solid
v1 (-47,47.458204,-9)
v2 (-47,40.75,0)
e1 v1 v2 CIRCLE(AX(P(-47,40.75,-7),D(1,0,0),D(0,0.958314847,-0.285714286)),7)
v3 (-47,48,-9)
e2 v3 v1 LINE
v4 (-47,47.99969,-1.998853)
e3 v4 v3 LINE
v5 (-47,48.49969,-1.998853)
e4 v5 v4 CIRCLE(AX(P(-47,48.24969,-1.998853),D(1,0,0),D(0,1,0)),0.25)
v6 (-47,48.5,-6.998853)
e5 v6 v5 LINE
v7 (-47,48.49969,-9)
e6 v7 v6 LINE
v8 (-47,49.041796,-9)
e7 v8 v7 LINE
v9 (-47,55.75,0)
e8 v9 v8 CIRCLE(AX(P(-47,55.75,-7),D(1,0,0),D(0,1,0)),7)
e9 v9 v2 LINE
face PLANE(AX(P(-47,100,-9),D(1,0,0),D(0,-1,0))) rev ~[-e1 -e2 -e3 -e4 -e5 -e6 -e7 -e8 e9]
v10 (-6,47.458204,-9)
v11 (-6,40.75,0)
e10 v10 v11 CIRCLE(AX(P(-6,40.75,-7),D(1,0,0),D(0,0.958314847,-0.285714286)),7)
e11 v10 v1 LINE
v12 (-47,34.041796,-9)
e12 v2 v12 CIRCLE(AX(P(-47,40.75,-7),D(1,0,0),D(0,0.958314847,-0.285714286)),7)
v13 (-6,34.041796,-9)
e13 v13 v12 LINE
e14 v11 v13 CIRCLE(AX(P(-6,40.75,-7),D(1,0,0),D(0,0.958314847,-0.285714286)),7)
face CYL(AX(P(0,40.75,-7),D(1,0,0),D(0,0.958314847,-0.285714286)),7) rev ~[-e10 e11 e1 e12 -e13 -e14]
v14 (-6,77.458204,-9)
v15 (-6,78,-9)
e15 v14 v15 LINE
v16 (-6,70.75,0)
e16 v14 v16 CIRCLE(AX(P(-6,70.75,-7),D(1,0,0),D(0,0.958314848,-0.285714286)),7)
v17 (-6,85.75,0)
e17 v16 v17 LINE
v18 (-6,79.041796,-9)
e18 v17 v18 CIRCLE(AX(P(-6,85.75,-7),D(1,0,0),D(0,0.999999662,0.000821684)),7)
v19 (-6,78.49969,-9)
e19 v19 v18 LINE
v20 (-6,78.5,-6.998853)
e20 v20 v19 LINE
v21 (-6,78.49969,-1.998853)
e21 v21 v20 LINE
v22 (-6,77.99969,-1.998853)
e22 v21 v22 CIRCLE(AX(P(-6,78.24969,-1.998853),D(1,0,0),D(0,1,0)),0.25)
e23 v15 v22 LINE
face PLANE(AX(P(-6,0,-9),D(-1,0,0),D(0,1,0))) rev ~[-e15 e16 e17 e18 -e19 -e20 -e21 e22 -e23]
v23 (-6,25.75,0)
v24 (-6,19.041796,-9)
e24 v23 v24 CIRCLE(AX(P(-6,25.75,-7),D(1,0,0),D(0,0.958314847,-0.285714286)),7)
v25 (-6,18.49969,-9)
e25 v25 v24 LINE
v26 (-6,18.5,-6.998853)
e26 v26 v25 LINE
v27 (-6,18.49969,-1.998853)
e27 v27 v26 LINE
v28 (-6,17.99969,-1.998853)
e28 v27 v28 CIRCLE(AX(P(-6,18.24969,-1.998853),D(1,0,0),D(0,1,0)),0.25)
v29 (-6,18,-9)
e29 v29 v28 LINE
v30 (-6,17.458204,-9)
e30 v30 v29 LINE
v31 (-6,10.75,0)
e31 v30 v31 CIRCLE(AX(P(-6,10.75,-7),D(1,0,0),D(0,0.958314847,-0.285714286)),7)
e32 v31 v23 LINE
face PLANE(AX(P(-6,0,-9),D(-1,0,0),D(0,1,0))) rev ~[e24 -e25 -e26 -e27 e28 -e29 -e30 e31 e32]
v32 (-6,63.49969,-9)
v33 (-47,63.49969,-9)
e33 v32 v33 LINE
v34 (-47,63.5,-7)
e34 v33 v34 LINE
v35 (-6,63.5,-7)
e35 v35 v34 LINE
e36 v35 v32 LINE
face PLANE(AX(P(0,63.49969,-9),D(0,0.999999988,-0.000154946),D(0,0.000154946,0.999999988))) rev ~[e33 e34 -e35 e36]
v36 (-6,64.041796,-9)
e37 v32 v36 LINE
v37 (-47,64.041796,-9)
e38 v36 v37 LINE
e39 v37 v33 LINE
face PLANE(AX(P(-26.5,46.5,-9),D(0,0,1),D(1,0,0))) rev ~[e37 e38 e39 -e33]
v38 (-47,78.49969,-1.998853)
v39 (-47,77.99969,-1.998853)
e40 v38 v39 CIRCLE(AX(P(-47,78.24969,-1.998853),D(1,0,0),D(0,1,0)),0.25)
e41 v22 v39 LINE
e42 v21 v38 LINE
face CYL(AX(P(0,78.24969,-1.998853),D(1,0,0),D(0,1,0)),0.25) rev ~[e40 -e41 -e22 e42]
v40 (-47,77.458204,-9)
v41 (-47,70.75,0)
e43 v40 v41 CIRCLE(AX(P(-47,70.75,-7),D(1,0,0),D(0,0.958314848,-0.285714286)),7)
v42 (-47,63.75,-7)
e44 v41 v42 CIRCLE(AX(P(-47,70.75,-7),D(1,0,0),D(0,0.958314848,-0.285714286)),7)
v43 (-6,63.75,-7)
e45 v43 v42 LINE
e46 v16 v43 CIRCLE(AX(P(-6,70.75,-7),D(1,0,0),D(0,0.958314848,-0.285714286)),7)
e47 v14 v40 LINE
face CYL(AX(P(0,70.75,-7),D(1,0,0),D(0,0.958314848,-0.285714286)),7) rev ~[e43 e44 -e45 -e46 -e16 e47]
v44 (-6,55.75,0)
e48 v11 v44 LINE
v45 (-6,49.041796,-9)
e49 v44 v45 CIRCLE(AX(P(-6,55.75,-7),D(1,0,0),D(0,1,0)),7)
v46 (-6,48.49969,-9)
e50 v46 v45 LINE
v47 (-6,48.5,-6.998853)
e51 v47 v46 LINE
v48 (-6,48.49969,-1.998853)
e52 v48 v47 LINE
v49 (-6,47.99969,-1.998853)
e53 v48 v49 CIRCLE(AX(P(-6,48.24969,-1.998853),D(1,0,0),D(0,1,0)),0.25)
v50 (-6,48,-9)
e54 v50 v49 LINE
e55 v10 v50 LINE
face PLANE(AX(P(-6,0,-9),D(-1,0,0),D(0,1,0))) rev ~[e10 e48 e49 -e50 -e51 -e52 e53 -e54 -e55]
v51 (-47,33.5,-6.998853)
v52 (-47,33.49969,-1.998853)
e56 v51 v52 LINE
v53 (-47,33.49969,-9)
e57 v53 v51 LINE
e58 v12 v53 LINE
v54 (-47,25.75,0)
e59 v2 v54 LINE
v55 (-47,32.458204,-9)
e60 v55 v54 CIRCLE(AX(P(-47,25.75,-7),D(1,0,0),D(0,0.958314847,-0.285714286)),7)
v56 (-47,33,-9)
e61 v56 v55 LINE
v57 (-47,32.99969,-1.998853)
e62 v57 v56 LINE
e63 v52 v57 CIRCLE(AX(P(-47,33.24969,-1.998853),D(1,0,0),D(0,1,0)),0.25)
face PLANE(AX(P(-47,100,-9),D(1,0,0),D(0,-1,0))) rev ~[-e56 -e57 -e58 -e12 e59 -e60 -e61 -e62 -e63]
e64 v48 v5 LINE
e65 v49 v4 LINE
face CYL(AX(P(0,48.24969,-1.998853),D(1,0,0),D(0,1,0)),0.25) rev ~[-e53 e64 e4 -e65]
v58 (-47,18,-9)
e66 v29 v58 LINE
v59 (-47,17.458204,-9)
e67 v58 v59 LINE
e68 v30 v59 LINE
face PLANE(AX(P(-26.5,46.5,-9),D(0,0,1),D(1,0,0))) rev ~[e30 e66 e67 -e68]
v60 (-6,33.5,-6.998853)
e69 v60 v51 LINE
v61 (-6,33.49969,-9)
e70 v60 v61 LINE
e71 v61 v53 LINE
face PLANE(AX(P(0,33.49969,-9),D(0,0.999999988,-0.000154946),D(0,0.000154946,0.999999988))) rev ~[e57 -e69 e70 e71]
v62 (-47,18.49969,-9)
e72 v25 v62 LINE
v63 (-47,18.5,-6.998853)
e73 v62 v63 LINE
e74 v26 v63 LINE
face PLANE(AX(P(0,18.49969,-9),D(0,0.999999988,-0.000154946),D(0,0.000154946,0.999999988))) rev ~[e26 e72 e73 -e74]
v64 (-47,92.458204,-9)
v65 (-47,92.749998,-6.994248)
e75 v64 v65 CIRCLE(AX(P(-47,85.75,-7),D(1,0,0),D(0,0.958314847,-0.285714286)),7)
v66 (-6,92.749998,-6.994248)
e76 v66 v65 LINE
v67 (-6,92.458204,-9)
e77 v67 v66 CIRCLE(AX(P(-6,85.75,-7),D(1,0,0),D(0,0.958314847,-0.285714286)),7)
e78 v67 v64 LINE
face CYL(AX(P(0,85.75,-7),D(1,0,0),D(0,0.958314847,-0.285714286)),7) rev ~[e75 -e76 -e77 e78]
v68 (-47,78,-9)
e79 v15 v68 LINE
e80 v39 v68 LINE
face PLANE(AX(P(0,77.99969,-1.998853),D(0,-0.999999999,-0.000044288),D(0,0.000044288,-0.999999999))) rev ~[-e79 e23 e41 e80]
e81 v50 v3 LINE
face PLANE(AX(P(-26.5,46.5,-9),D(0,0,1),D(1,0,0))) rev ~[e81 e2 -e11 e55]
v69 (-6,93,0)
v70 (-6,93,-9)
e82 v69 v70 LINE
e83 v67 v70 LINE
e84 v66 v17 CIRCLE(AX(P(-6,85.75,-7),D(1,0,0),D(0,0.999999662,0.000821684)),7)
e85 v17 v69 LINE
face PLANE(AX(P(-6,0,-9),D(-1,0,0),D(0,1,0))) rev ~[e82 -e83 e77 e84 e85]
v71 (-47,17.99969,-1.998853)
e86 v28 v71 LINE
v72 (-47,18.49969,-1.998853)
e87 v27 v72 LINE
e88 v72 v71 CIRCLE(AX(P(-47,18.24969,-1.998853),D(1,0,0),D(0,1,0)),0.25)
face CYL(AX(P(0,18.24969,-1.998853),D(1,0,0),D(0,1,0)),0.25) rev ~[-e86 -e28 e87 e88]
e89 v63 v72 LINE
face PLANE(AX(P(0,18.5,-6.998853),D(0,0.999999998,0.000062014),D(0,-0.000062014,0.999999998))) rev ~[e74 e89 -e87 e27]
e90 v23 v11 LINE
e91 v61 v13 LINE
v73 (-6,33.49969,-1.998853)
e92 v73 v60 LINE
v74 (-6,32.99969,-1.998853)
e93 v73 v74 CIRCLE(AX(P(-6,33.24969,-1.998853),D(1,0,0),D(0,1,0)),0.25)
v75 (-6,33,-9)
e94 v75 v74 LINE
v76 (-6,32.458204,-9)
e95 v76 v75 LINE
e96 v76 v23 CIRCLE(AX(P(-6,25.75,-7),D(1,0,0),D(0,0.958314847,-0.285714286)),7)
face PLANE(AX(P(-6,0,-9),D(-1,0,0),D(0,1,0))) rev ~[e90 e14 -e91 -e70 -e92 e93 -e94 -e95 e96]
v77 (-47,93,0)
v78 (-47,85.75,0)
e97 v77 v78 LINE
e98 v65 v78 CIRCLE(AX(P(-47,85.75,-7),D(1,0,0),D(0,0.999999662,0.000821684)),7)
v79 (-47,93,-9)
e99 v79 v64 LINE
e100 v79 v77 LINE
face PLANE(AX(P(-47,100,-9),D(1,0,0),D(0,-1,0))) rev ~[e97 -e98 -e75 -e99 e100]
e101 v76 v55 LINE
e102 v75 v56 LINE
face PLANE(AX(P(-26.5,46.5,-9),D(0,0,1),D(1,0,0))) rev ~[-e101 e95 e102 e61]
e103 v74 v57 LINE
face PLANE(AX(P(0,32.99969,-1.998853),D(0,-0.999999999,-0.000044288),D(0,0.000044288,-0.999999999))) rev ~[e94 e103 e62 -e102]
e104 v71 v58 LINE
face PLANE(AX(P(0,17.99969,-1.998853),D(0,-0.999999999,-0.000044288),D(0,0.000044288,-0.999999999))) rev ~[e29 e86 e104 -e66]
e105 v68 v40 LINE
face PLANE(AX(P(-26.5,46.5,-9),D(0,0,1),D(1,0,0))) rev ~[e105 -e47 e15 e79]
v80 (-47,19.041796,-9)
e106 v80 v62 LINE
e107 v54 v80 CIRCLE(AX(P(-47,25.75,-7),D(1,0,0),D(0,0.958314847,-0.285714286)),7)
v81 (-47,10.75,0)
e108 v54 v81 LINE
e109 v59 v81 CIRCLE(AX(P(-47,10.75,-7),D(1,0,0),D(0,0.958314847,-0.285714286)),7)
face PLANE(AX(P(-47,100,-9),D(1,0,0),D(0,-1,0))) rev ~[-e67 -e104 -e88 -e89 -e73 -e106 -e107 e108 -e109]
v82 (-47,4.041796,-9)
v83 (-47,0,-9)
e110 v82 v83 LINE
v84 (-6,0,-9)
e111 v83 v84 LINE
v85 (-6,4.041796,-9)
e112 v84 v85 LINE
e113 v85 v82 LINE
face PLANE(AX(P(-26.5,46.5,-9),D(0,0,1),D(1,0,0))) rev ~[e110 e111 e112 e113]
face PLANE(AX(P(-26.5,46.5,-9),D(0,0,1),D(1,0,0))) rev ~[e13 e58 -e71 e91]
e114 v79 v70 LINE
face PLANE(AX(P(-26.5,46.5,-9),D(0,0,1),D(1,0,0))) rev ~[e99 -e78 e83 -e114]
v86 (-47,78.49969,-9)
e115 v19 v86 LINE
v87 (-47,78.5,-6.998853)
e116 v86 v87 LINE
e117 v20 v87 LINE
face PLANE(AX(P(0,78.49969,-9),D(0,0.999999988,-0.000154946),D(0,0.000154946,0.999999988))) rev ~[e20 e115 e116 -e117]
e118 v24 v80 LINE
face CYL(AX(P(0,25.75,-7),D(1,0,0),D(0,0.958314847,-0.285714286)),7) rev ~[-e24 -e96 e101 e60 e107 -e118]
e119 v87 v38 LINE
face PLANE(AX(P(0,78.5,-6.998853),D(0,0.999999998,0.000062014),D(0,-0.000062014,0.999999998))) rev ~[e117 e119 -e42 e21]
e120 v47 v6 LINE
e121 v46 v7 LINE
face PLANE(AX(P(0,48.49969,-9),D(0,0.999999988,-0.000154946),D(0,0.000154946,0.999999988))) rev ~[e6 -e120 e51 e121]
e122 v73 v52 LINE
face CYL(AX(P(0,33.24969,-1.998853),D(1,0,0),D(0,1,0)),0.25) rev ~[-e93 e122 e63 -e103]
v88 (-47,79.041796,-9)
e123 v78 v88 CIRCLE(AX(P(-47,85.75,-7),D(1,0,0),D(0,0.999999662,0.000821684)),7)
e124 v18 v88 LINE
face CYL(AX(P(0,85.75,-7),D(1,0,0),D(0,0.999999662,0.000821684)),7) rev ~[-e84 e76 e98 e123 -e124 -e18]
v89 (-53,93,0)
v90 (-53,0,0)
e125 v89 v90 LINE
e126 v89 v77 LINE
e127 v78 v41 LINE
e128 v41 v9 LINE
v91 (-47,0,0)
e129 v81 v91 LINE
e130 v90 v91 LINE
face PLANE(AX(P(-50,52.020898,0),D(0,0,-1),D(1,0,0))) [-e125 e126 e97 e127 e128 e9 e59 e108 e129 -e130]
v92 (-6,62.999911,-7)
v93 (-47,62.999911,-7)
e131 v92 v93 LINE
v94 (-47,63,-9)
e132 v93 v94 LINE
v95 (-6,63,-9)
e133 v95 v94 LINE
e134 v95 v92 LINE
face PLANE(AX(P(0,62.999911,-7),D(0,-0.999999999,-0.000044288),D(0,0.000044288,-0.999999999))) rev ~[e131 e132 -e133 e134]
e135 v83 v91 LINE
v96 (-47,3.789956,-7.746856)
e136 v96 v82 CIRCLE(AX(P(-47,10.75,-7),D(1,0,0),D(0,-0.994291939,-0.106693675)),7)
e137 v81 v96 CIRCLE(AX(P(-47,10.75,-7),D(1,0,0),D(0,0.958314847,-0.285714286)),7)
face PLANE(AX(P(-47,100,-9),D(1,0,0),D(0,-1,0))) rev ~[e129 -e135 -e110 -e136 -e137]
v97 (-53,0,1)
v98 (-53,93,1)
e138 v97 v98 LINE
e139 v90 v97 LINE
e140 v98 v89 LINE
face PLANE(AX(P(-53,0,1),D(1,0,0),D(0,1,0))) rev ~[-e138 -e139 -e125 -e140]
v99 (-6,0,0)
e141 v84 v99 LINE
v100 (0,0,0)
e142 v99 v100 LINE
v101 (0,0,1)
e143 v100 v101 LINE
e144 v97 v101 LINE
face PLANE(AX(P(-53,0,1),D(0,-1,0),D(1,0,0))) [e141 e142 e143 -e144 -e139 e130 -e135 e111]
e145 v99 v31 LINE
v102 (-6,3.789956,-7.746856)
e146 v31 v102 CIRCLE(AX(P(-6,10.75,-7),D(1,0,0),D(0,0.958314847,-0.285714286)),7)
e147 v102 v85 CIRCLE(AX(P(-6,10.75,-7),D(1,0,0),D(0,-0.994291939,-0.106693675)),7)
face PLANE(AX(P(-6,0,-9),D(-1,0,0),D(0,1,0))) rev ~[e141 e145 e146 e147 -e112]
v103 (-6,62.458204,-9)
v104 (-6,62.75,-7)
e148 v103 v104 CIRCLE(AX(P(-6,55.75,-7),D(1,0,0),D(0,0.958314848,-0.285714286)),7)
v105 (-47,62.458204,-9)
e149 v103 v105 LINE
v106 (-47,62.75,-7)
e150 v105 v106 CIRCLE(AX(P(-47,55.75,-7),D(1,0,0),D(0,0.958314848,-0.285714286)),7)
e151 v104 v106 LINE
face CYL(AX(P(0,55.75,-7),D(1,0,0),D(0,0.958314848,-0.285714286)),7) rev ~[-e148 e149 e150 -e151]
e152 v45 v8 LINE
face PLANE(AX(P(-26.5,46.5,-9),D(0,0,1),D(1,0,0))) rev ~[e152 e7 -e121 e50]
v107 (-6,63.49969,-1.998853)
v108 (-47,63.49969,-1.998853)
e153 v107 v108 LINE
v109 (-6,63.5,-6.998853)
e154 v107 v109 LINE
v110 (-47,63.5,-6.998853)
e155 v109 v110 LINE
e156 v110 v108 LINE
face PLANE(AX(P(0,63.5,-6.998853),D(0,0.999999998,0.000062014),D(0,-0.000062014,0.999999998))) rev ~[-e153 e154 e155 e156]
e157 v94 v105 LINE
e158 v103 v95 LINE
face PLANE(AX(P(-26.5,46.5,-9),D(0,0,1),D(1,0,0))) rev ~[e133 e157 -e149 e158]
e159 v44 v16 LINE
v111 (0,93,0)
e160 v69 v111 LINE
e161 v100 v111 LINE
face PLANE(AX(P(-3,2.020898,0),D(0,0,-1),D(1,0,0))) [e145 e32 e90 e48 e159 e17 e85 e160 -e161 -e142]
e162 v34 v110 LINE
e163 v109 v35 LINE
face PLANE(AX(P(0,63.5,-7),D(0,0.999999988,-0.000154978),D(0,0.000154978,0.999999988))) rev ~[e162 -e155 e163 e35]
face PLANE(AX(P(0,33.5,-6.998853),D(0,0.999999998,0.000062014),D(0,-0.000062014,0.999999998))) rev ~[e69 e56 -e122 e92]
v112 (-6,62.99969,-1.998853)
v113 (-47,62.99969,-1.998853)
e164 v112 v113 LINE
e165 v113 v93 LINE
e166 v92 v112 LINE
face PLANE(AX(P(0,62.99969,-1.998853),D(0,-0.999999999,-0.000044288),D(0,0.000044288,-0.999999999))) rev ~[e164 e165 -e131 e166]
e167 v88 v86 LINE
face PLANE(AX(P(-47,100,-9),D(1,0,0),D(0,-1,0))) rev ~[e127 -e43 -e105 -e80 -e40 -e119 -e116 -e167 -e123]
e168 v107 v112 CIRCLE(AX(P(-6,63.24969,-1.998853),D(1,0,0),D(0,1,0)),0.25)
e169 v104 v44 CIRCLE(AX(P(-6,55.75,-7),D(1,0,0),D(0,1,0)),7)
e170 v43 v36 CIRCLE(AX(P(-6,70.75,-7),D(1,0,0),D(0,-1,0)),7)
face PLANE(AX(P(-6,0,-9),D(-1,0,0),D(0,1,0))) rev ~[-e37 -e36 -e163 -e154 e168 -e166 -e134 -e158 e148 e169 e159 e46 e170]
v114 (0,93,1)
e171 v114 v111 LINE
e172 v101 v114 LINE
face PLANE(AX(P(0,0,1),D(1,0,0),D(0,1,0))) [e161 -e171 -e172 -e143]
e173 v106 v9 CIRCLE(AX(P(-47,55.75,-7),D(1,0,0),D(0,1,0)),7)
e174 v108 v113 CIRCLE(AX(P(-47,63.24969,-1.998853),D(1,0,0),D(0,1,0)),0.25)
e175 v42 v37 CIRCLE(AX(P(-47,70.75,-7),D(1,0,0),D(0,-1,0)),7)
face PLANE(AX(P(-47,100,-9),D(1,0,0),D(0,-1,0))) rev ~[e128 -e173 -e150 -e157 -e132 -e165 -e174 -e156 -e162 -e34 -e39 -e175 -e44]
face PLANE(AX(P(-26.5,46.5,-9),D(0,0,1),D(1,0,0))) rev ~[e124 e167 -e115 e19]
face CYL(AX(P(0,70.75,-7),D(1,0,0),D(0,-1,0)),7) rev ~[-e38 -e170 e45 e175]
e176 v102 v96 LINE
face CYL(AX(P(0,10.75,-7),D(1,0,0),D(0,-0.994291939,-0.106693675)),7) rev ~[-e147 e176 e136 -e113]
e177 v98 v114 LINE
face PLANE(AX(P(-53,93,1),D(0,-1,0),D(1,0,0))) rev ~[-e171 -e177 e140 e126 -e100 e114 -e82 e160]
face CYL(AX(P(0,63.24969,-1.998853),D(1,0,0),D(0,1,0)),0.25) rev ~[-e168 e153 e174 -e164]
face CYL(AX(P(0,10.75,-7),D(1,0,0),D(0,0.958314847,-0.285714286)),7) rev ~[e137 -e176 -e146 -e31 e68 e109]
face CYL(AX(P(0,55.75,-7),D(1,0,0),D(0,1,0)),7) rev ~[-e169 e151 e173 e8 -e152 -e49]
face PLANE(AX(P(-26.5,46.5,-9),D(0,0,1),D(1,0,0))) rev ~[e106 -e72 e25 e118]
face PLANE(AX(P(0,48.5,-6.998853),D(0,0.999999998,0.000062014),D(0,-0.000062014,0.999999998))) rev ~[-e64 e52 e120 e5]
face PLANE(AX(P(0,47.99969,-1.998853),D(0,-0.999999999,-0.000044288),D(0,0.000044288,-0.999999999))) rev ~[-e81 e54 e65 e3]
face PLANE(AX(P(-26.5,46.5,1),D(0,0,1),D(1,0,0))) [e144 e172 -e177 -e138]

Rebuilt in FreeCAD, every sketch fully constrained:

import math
import FreeCAD as App
import Part
import Sketcher
from FreeCAD import Vector
Q = App.Units.Quantity


def add_polygon(sketch, points):
    """Adds a closed chain of lines whose ends are joined by coincident constraints."""
    first, n = sketch.GeometryCount, len(points)
    for a, b in zip(points, points[1:] + points[:1]):
        sketch.addGeometry(Part.LineSegment(App.Vector(*a, 0), App.Vector(*b, 0)), False)
    for i in range(n):
        sketch.addConstraint(Sketcher.Constraint("Coincident", first + i, 2, first + (i + 1) % n, 1))

doc = App.newDocument("Part")
params = doc.addObject("Spreadsheet::Sheet", "Params")
for row, (alias, value) in enumerate([
    ("sketch1_width", "53 mm"),
    ("sketch1_height", "93 mm"),
    ("pad1_length", "1 mm"),
    ("sketch2_width", "53 mm"),
    ("sketch2_height", "93 mm"),
    ("pad2_length", "10 mm"),
    ("sketch3_radius", "7 mm"),
    ("pocket1_length", "70 mm"),
    ("sketch4_width", "6 mm"),
    ("sketch4_height", "100 mm"),
    ("pocket2_length", "9 mm"),
    ("sketch5_radius", "0.25 mm"),
    ("sketch5_length", "5 mm"),
    ("sketch5_length2", "2 mm"),
    ("pocket3_length", "60 mm"),
], start=1):
    params.set(f"A{row}", alias)
    params.set(f"B{row}", "=" + value)
    params.setAlias(f"B{row}", alias)

body = doc.addObject("PartDesign::Body", "Body")

# Sketch on XY plane
sketch1 = body.newObject("Sketcher::SketchObject", "Sketch")
sketch1.AttachmentSupport = (doc.getObject("XY_Plane"), [""])
sketch1.MapMode = "FlatFace"
add_polygon(sketch1, [(-53, 93), (-53, 0), (0, 0), (0, 93)])  # lines 0-3
sketch1.addConstraint(Sketcher.Constraint("Vertical", 0))
sketch1.addConstraint(Sketcher.Constraint("Horizontal", 1))
sketch1.addConstraint(Sketcher.Constraint("Vertical", 2))
sketch1.addConstraint(Sketcher.Constraint("Horizontal", 3))
sketch1.addConstraint(Sketcher.Constraint("Coincident", 1, 2, -1, 1))
sketch1.addConstraint(Sketcher.Constraint("DistanceX", 1, 1, 1, 2, Q("53 mm")))
sketch1.addConstraint(Sketcher.Constraint("DistanceY", 0, 2, 0, 1, Q("93 mm")))
sketch1.setExpression("Constraints[9]", "Params.sketch1_width")
sketch1.setExpression("Constraints[10]", "Params.sketch1_height")
pad1 = body.newObject("PartDesign::Pad", "Pad")
pad1.Profile = sketch1
pad1.setExpression("Length", "Params.pad1_length")

# Sketch on XY plane
sketch2 = body.newObject("Sketcher::SketchObject", "Sketch001")
sketch2.AttachmentSupport = (doc.getObject("XY_Plane"), [""])
sketch2.MapMode = "FlatFace"
sketch2.AttachmentOffset = App.Placement(Vector(0, 0, 1), App.Rotation())
add_polygon(sketch2, [(-53, 93), (-53, 0), (0, 0), (0, 93)])  # lines 0-3
sketch2.addConstraint(Sketcher.Constraint("Vertical", 0))
sketch2.addConstraint(Sketcher.Constraint("Horizontal", 1))
sketch2.addConstraint(Sketcher.Constraint("Vertical", 2))
sketch2.addConstraint(Sketcher.Constraint("Horizontal", 3))
sketch2.addConstraint(Sketcher.Constraint("Coincident", 1, 2, -1, 1))
sketch2.addConstraint(Sketcher.Constraint("DistanceX", 1, 1, 1, 2, Q("53 mm")))
sketch2.addConstraint(Sketcher.Constraint("DistanceY", 0, 2, 0, 1, Q("93 mm")))
sketch2.setExpression("Constraints[9]", "Params.sketch2_width")
sketch2.setExpression("Constraints[10]", "Params.sketch2_height")
pad2 = body.newObject("PartDesign::Pad", "Pad001")
pad2.Profile = sketch2
pad2.setExpression("Length", "Params.pad2_length")
pad2.Reversed = True

# Sketch on YZ plane
sketch3 = body.newObject("Sketcher::SketchObject", "Sketch002")
sketch3.AttachmentSupport = (doc.getObject("YZ_Plane"), [""])
sketch3.MapMode = "FlatFace"
sketch3.addGeometry(Part.LineSegment(Vector(93, -9, 0), Vector(92.5, -9, 0)), False)
sketch3.addGeometry(Part.ArcOfCircle(Part.Circle(Vector(85.8, -7, 0), Vector(0, 0, 1), 7), math.radians(-16.6), math.radians(0.05)), False)
sketch3.addGeometry(Part.ArcOfCircle(Part.Circle(Vector(85.8, -7, 0), Vector(0, 0, 1), 7), math.radians(0), math.radians(197)), False)
sketch3.addGeometry(Part.LineSegment(Vector(79, -9, 0), Vector(77.5, -9, 0)), False)
sketch3.addGeometry(Part.ArcOfCircle(Part.Circle(Vector(70.8, -7, 0), Vector(0, 0, 1), 7), math.radians(-17), math.radians(180)), False)
sketch3.addGeometry(Part.ArcOfCircle(Part.Circle(Vector(70.8, -7, 0), Vector(0, 0, 1), 7), math.radians(-180), math.radians(-163.4)), False)
sketch3.addGeometry(Part.LineSegment(Vector(64, -9, 0), Vector(62.5, -9, 0)), False)
sketch3.addGeometry(Part.ArcOfCircle(Part.Circle(Vector(55.7, -7, 0), Vector(0, 0, 1), 7), math.radians(-16.6), math.radians(0)), False)
sketch3.addGeometry(Part.ArcOfCircle(Part.Circle(Vector(55.8, -7, 0), Vector(0, 0, 1), 7), math.radians(0), math.radians(197)), False)
sketch3.addGeometry(Part.LineSegment(Vector(49, -9, 0), Vector(47.5, -9, 0)), False)
sketch3.addGeometry(Part.ArcOfCircle(Part.Circle(Vector(40.8, -7, 0), Vector(0, 0, 1), 7), math.radians(-17), math.radians(197)), False)
sketch3.addGeometry(Part.LineSegment(Vector(34, -9, 0), Vector(32.5, -9, 0)), False)
sketch3.addGeometry(Part.ArcOfCircle(Part.Circle(Vector(25.7, -7, 0), Vector(0, 0, 1), 7), math.radians(-17), math.radians(197)), False)
sketch3.addGeometry(Part.LineSegment(Vector(19, -9, 0), Vector(17.5, -9, 0)), False)
sketch3.addGeometry(Part.ArcOfCircle(Part.Circle(Vector(10.7, -7, 0), Vector(0, 0, 1), 7), math.radians(-17), math.radians(186)), False)
sketch3.addGeometry(Part.ArcOfCircle(Part.Circle(Vector(10.8, -7, 0), Vector(0, 0, 1), 7), math.radians(-173.88), math.radians(-163.4)), False)
sketch3.addGeometry(Part.LineSegment(Vector(4, -9, 0), Vector(0, -9, 0)), False)
sketch3.addGeometry(Part.LineSegment(Vector(0, -9, 0), Vector(0, -7.7, 0)), False)
sketch3.addGeometry(Part.LineSegment(Vector(0, -7.7, 0), Vector(-7.5, -7.7, 0)), False)
sketch3.addGeometry(Part.LineSegment(Vector(-7.5, -7.7, 0), Vector(-7.5, -22.5, 0)), False)
sketch3.addGeometry(Part.LineSegment(Vector(-7.5, -22.5, 0), Vector(98.1, -22.5, 0)), False)
sketch3.addGeometry(Part.LineSegment(Vector(98.1, -22.5, 0), Vector(98.1, -7, 0)), False)
sketch3.addGeometry(Part.LineSegment(Vector(98.1, -7, 0), Vector(93, -7, 0)), False)
sketch3.addGeometry(Part.LineSegment(Vector(93, -7, 0), Vector(93, -9, 0)), False)
sketch3.addConstraint(Sketcher.Constraint("Coincident", 0, 2, 1, 1))
sketch3.addConstraint(Sketcher.Constraint("Tangent", 1, 2, 2, 1))
sketch3.addConstraint(Sketcher.Constraint("Coincident", 2, 2, 3, 1))
sketch3.addConstraint(Sketcher.Constraint("Coincident", 3, 2, 4, 1))
sketch3.addConstraint(Sketcher.Constraint("Tangent", 4, 2, 5, 1))
sketch3.addConstraint(Sketcher.Constraint("Coincident", 5, 2, 6, 1))
sketch3.addConstraint(Sketcher.Constraint("Coincident", 6, 2, 7, 1))
sketch3.addConstraint(Sketcher.Constraint("Tangent", 7, 2, 8, 1))
sketch3.addConstraint(Sketcher.Constraint("Coincident", 8, 2, 9, 1))
sketch3.addConstraint(Sketcher.Constraint("Coincident", 9, 2, 10, 1))
sketch3.addConstraint(Sketcher.Constraint("Coincident", 10, 2, 11, 1))
sketch3.addConstraint(Sketcher.Constraint("Coincident", 11, 2, 12, 1))
sketch3.addConstraint(Sketcher.Constraint("Coincident", 12, 2, 13, 1))
sketch3.addConstraint(Sketcher.Constraint("Coincident", 13, 2, 14, 1))
sketch3.addConstraint(Sketcher.Constraint("Tangent", 14, 2, 15, 1))
sketch3.addConstraint(Sketcher.Constraint("Coincident", 15, 2, 16, 1))
sketch3.addConstraint(Sketcher.Constraint("Coincident", 16, 2, 17, 1))
sketch3.addConstraint(Sketcher.Constraint("Coincident", 17, 2, 18, 1))
sketch3.addConstraint(Sketcher.Constraint("Coincident", 18, 2, 19, 1))
sketch3.addConstraint(Sketcher.Constraint("Coincident", 19, 2, 20, 1))
sketch3.addConstraint(Sketcher.Constraint("Coincident", 20, 2, 21, 1))
sketch3.addConstraint(Sketcher.Constraint("Coincident", 21, 2, 22, 1))
sketch3.addConstraint(Sketcher.Constraint("Coincident", 22, 2, 23, 1))
sketch3.addConstraint(Sketcher.Constraint("Coincident", 23, 2, 0, 1))
sketch3.addConstraint(Sketcher.Constraint("Horizontal", 0))
sketch3.addConstraint(Sketcher.Constraint("Horizontal", 3))
sketch3.addConstraint(Sketcher.Constraint("Horizontal", 6))
sketch3.addConstraint(Sketcher.Constraint("Horizontal", 9))
sketch3.addConstraint(Sketcher.Constraint("Horizontal", 11))
sketch3.addConstraint(Sketcher.Constraint("Horizontal", 13))
sketch3.addConstraint(Sketcher.Constraint("Horizontal", 16))
sketch3.addConstraint(Sketcher.Constraint("Vertical", 17))
sketch3.addConstraint(Sketcher.Constraint("Horizontal", 18))
sketch3.addConstraint(Sketcher.Constraint("Vertical", 19))
sketch3.addConstraint(Sketcher.Constraint("Horizontal", 20))
sketch3.addConstraint(Sketcher.Constraint("Vertical", 21))
sketch3.addConstraint(Sketcher.Constraint("Horizontal", 22))
sketch3.addConstraint(Sketcher.Constraint("Vertical", 23))
sketch3.addConstraint(Sketcher.Constraint("Equal", 1, 2))
sketch3.addConstraint(Sketcher.Constraint("Equal", 2, 4))
sketch3.addConstraint(Sketcher.Constraint("Equal", 4, 5))
sketch3.addConstraint(Sketcher.Constraint("Equal", 5, 7))
sketch3.addConstraint(Sketcher.Constraint("Equal", 7, 8))
sketch3.addConstraint(Sketcher.Constraint("Equal", 8, 10))
sketch3.addConstraint(Sketcher.Constraint("Equal", 10, 12))
sketch3.addConstraint(Sketcher.Constraint("Equal", 12, 14))
sketch3.addConstraint(Sketcher.Constraint("Equal", 14, 15))
sketch3.addConstraint(Sketcher.Constraint("PointOnObject", 16, 2, -2))
sketch3.addConstraint(Sketcher.Constraint("Horizontal", 2, 3, 4, 3))
sketch3.addConstraint(Sketcher.Constraint("Horizontal", 5, 3, 7, 3))
sketch3.addConstraint(Sketcher.Constraint("Horizontal", 8, 3, 10, 3))
sketch3.addConstraint(Sketcher.Constraint("Horizontal", 10, 3, 12, 3))
sketch3.addConstraint(Sketcher.Constraint("Horizontal", 12, 3, 14, 3))
sketch3.addConstraint(Sketcher.Constraint("Horizontal", 0, 2, 2, 2))
sketch3.addConstraint(Sketcher.Constraint("Horizontal", 15, 3, 4, 2))
sketch3.addConstraint(Sketcher.Constraint("Horizontal", 3, 2, 5, 2))
sketch3.addConstraint(Sketcher.Constraint("Horizontal", 4, 2, 7, 2))
sketch3.addConstraint(Sketcher.Constraint("Horizontal", 6, 2, 8, 2))
sketch3.addConstraint(Sketcher.Constraint("Horizontal", 9, 2, 10, 2))
sketch3.addConstraint(Sketcher.Constraint("Horizontal", 11, 2, 12, 2))
sketch3.addConstraint(Sketcher.Constraint("Horizontal", 13, 2, 15, 2))
sketch3.addConstraint(Sketcher.Constraint("Horizontal", 14, 2, 17, 2))
sketch3.addConstraint(Sketcher.Constraint("Horizontal", 1, 2, 21, 2))
sketch3.addConstraint(Sketcher.Constraint("Equal", 3, 6))
sketch3.addConstraint(Sketcher.Constraint("Equal", 6, 9))
sketch3.addConstraint(Sketcher.Constraint("Equal", 9, 11))
sketch3.addConstraint(Sketcher.Constraint("Equal", 11, 13))
sketch3.addConstraint(Sketcher.Constraint("Radius", 1, Q("7 mm")))
sketch3.addConstraint(Sketcher.Constraint("DistanceY", 1, 3, -1, 1, Q("7 mm")))
sketch3.addConstraint(Sketcher.Constraint("DistanceY", 0, 2, -1, 1, Q("9 mm")))
sketch3.addConstraint(Sketcher.Constraint("DistanceX", -1, 1, 22, 2, Q("93 mm")))
sketch3.addConstraint(Sketcher.Constraint("DistanceX", 4, 3, 2, 3, Q("15 mm")))
sketch3.addConstraint(Sketcher.Constraint("DistanceX", -1, 1, 1, 3, Q("85.75 mm")))
sketch3.addConstraint(Sketcher.Constraint("DistanceY", 23, 2, 23, 1, Q("2.005752 mm")))
sketch3.addConstraint(Sketcher.Constraint("DistanceX", 0, 2, 20, 2, Q("5.625702 mm")))
sketch3.addConstraint(Sketcher.Constraint("DistanceX", 18, 2, 18, 1, Q("7.470557 mm")))
sketch3.addConstraint(Sketcher.Constraint("DistanceY", 17, 1, 17, 2, Q("1.253144 mm")))
sketch3.addConstraint(Sketcher.Constraint("DistanceY", 19, 2, 19, 1, Q("14.708185 mm")))
sketch3.setExpression("Constraints[67]", "Params.sketch3_radius")
pocket1 = body.newObject("PartDesign::Pocket", "Pocket")
pocket1.Profile = sketch3
pocket1.setExpression("Length", "Params.pocket1_length")

# Sketch on XY plane
sketch4 = body.newObject("Sketcher::SketchObject", "Sketch003")
sketch4.AttachmentSupport = (doc.getObject("XY_Plane"), [""])
sketch4.MapMode = "FlatFace"
sketch4.AttachmentOffset = App.Placement(Vector(0, 0, -9), App.Rotation())
add_polygon(sketch4, [(-53, 100), (-47, 100), (-47, 0), (-53, 0)])  # lines 0-3
add_polygon(sketch4, [(-6, 0), (-6, 100), (0, 100), (0, 0)])  # lines 4-7
sketch4.addConstraint(Sketcher.Constraint("Horizontal", 0))
sketch4.addConstraint(Sketcher.Constraint("Vertical", 1))
sketch4.addConstraint(Sketcher.Constraint("Horizontal", 2))
sketch4.addConstraint(Sketcher.Constraint("Vertical", 3))
sketch4.addConstraint(Sketcher.Constraint("Vertical", 4))
sketch4.addConstraint(Sketcher.Constraint("Horizontal", 5))
sketch4.addConstraint(Sketcher.Constraint("Vertical", 6))
sketch4.addConstraint(Sketcher.Constraint("Horizontal", 7))
sketch4.addConstraint(Sketcher.Constraint("Coincident", 6, 2, -1, 1))
sketch4.addConstraint(Sketcher.Constraint("PointOnObject", 1, 2, -1))
sketch4.addConstraint(Sketcher.Constraint("Horizontal", 3, 2, 4, 2))
sketch4.addConstraint(Sketcher.Constraint("Equal", 2, 5))
sketch4.addConstraint(Sketcher.Constraint("DistanceX", 0, 1, 0, 2, Q("6 mm")))
sketch4.addConstraint(Sketcher.Constraint("DistanceY", 1, 2, 1, 1, Q("100 mm")))
sketch4.addConstraint(Sketcher.Constraint("DistanceX", 0, 2, -1, 1, Q("47 mm")))
sketch4.setExpression("Constraints[20]", "Params.sketch4_width")
sketch4.setExpression("Constraints[21]", "Params.sketch4_height")
pocket2 = body.newObject("PartDesign::Pocket", "Pocket001")
pocket2.Profile = sketch4
pocket2.setExpression("Length", "Params.pocket2_length")
pocket2.Reversed = True

# Sketch on YZ plane
sketch5 = body.newObject("Sketcher::SketchObject", "Sketch004")
sketch5.AttachmentSupport = (doc.getObject("YZ_Plane"), [""])
sketch5.MapMode = "FlatFace"
sketch5.addGeometry(Part.LineSegment(Vector(17.9997, -1.9989, 0), Vector(18, -9, 0)), False)
sketch5.addGeometry(Part.LineSegment(Vector(18, -9, 0), Vector(18.4997, -9, 0)), False)
sketch5.addGeometry(Part.LineSegment(Vector(18.4997, -9, 0), Vector(18.5, -6.9989, 0)), False)
sketch5.addGeometry(Part.LineSegment(Vector(18.5, -6.9989, 0), Vector(18.4997, -1.9989, 0)), False)
sketch5.addGeometry(Part.ArcOfCircle(Part.Circle(Vector(18.2497, -1.9989, 0), Vector(0, 0, 1), 0.25), math.radians(0), math.radians(180)), False)
sketch5.addGeometry(Part.LineSegment(Vector(32.9997, -1.9989, 0), Vector(33, -9, 0)), False)
sketch5.addGeometry(Part.LineSegment(Vector(33, -9, 0), Vector(33.4997, -9, 0)), False)
sketch5.addGeometry(Part.LineSegment(Vector(33.4997, -9, 0), Vector(33.5, -6.9989, 0)), False)
sketch5.addGeometry(Part.LineSegment(Vector(33.5, -6.9989, 0), Vector(33.4997, -1.9989, 0)), False)
sketch5.addGeometry(Part.ArcOfCircle(Part.Circle(Vector(33.2497, -1.9989, 0), Vector(0, 0, 1), 0.25), math.radians(0), math.radians(180)), False)
sketch5.addGeometry(Part.LineSegment(Vector(48, -9, 0), Vector(48.4997, -9, 0)), False)
sketch5.addGeometry(Part.LineSegment(Vector(48.4997, -9, 0), Vector(48.5, -6.9989, 0)), False)
sketch5.addGeometry(Part.LineSegment(Vector(48.5, -6.9989, 0), Vector(48.4997, -1.9989, 0)), False)
sketch5.addGeometry(Part.ArcOfCircle(Part.Circle(Vector(48.2497, -1.9989, 0), Vector(0, 0, 1), 0.25), math.radians(0), math.radians(180)), False)
sketch5.addGeometry(Part.LineSegment(Vector(47.9997, -1.9989, 0), Vector(48, -9, 0)), False)
sketch5.addGeometry(Part.LineSegment(Vector(63.5, -7, 0), Vector(63.5, -6.9989, 0)), False)
sketch5.addGeometry(Part.LineSegment(Vector(63.5, -6.9989, 0), Vector(63.4997, -1.9989, 0)), False)
sketch5.addGeometry(Part.ArcOfCircle(Part.Circle(Vector(63.2497, -1.9989, 0), Vector(0, 0, 1), 0.25), math.radians(0), math.radians(180)), False)
sketch5.addGeometry(Part.LineSegment(Vector(62.9997, -1.9989, 0), Vector(62.9999, -7, 0)), False)
sketch5.addGeometry(Part.LineSegment(Vector(62.9999, -7, 0), Vector(63, -9, 0)), False)
sketch5.addGeometry(Part.LineSegment(Vector(63, -9, 0), Vector(63.4997, -9, 0)), False)
sketch5.addGeometry(Part.LineSegment(Vector(63.4997, -9, 0), Vector(63.5, -7, 0)), False)
sketch5.addGeometry(Part.LineSegment(Vector(78, -9, 0), Vector(78.4997, -9, 0)), False)
sketch5.addGeometry(Part.LineSegment(Vector(78.4997, -9, 0), Vector(78.5, -6.9989, 0)), False)
sketch5.addGeometry(Part.LineSegment(Vector(78.5, -6.9989, 0), Vector(78.4997, -1.9989, 0)), False)
sketch5.addGeometry(Part.ArcOfCircle(Part.Circle(Vector(78.2497, -1.9989, 0), Vector(0, 0, 1), 0.25), math.radians(0), math.radians(180)), False)
sketch5.addGeometry(Part.LineSegment(Vector(77.9997, -1.9989, 0), Vector(78, -9, 0)), False)
sketch5.addConstraint(Sketcher.Constraint("Coincident", 0, 2, 1, 1))
sketch5.addConstraint(Sketcher.Constraint("Coincident", 1, 2, 2, 1))
sketch5.addConstraint(Sketcher.Constraint("Coincident", 2, 2, 3, 1))
sketch5.addConstraint(Sketcher.Constraint("Coincident", 3, 2, 4, 1))
sketch5.addConstraint(Sketcher.Constraint("Coincident", 4, 2, 0, 1))
sketch5.addConstraint(Sketcher.Constraint("Coincident", 5, 2, 6, 1))
sketch5.addConstraint(Sketcher.Constraint("Coincident", 6, 2, 7, 1))
sketch5.addConstraint(Sketcher.Constraint("Coincident", 7, 2, 8, 1))
sketch5.addConstraint(Sketcher.Constraint("Coincident", 8, 2, 9, 1))
sketch5.addConstraint(Sketcher.Constraint("Coincident", 9, 2, 5, 1))
sketch5.addConstraint(Sketcher.Constraint("Coincident", 10, 2, 11, 1))
sketch5.addConstraint(Sketcher.Constraint("Coincident", 11, 2, 12, 1))
sketch5.addConstraint(Sketcher.Constraint("Coincident", 12, 2, 13, 1))
sketch5.addConstraint(Sketcher.Constraint("Coincident", 13, 2, 14, 1))
sketch5.addConstraint(Sketcher.Constraint("Coincident", 14, 2, 10, 1))
sketch5.addConstraint(Sketcher.Constraint("Coincident", 15, 2, 16, 1))
sketch5.addConstraint(Sketcher.Constraint("Coincident", 16, 2, 17, 1))
sketch5.addConstraint(Sketcher.Constraint("Coincident", 17, 2, 18, 1))
sketch5.addConstraint(Sketcher.Constraint("Coincident", 18, 2, 19, 1))
sketch5.addConstraint(Sketcher.Constraint("Coincident", 19, 2, 20, 1))
sketch5.addConstraint(Sketcher.Constraint("Coincident", 20, 2, 21, 1))
sketch5.addConstraint(Sketcher.Constraint("Coincident", 21, 2, 15, 1))
sketch5.addConstraint(Sketcher.Constraint("Coincident", 22, 2, 23, 1))
sketch5.addConstraint(Sketcher.Constraint("Coincident", 23, 2, 24, 1))
sketch5.addConstraint(Sketcher.Constraint("Coincident", 24, 2, 25, 1))
sketch5.addConstraint(Sketcher.Constraint("Coincident", 25, 2, 26, 1))
sketch5.addConstraint(Sketcher.Constraint("Coincident", 26, 2, 22, 1))
sketch5.addConstraint(Sketcher.Constraint("Horizontal", 1))
sketch5.addConstraint(Sketcher.Constraint("Horizontal", 6))
sketch5.addConstraint(Sketcher.Constraint("Horizontal", 10))
sketch5.addConstraint(Sketcher.Constraint("Vertical", 15))
sketch5.addConstraint(Sketcher.Constraint("Horizontal", 20))
sketch5.addConstraint(Sketcher.Constraint("Horizontal", 22))
sketch5.addConstraint(Sketcher.Constraint("Equal", 4, 9))
sketch5.addConstraint(Sketcher.Constraint("Equal", 9, 13))
sketch5.addConstraint(Sketcher.Constraint("Equal", 13, 17))
sketch5.addConstraint(Sketcher.Constraint("Equal", 17, 25))
sketch5.addConstraint(Sketcher.Constraint("Parallel", 0, 5))
sketch5.addConstraint(Sketcher.Constraint("Parallel", 2, 7))
sketch5.addConstraint(Sketcher.Constraint("Parallel", 3, 8))
sketch5.addConstraint(Sketcher.Constraint("Parallel", 7, 11))
sketch5.addConstraint(Sketcher.Constraint("Parallel", 8, 12))
sketch5.addConstraint(Sketcher.Constraint("Parallel", 5, 14))
sketch5.addConstraint(Sketcher.Constraint("Parallel", 12, 16))
sketch5.addConstraint(Sketcher.Constraint("Parallel", 14, 18))
sketch5.addConstraint(Sketcher.Constraint("Parallel", 18, 19))
sketch5.addConstraint(Sketcher.Constraint("Parallel", 11, 21))
sketch5.addConstraint(Sketcher.Constraint("Parallel", 21, 23))
sketch5.addConstraint(Sketcher.Constraint("Parallel", 16, 24))
sketch5.addConstraint(Sketcher.Constraint("Parallel", 19, 26))
sketch5.addConstraint(Sketcher.Constraint("Horizontal", 4, 3, 9, 3))
sketch5.addConstraint(Sketcher.Constraint("Horizontal", 9, 3, 13, 3))
sketch5.addConstraint(Sketcher.Constraint("Horizontal", 13, 3, 17, 3))
sketch5.addConstraint(Sketcher.Constraint("Horizontal", 17, 3, 25, 3))
sketch5.addConstraint(Sketcher.Constraint("Horizontal", 25, 3, 3, 2))
sketch5.addConstraint(Sketcher.Constraint("Horizontal", 3, 2, 4, 2))
sketch5.addConstraint(Sketcher.Constraint("Horizontal", 1, 2, 5, 2))
sketch5.addConstraint(Sketcher.Constraint("Horizontal", 2, 2, 7, 2))
sketch5.addConstraint(Sketcher.Constraint("Horizontal", 4, 2, 8, 2))
sketch5.addConstraint(Sketcher.Constraint("Horizontal", 8, 2, 9, 2))
sketch5.addConstraint(Sketcher.Constraint("Horizontal", 6, 2, 10, 2))
sketch5.addConstraint(Sketcher.Constraint("Horizontal", 7, 2, 11, 2))
sketch5.addConstraint(Sketcher.Constraint("Horizontal", 9, 2, 12, 2))
sketch5.addConstraint(Sketcher.Constraint("Horizontal", 12, 2, 13, 2))
sketch5.addConstraint(Sketcher.Constraint("Horizontal", 11, 2, 15, 2))
sketch5.addConstraint(Sketcher.Constraint("Horizontal", 13, 2, 16, 2))
sketch5.addConstraint(Sketcher.Constraint("Horizontal", 16, 2, 17, 2))
sketch5.addConstraint(Sketcher.Constraint("Horizontal", 14, 2, 19, 2))
sketch5.addConstraint(Sketcher.Constraint("Horizontal", 18, 2, 21, 2))
sketch5.addConstraint(Sketcher.Constraint("Horizontal", 20, 2, 22, 2))
sketch5.addConstraint(Sketcher.Constraint("Horizontal", 15, 2, 23, 2))
sketch5.addConstraint(Sketcher.Constraint("Horizontal", 17, 2, 24, 2))
sketch5.addConstraint(Sketcher.Constraint("Horizontal", 24, 2, 25, 2))
sketch5.addConstraint(Sketcher.Constraint("Vertical", 1, 2, 3, 2))
sketch5.addConstraint(Sketcher.Constraint("Radius", 4, Q("0.25 mm")))
sketch5.addConstraint(Sketcher.Constraint("Distance", 3, Q("5 mm")))
sketch5.addConstraint(Sketcher.Constraint("Distance", 19, Q("2 mm")))
sketch5.addConstraint(Sketcher.Constraint("DistanceX", -1, 1, 0, 2, Q("18 mm")))
sketch5.addConstraint(Sketcher.Constraint("DistanceY", 0, 2, -1, 1, Q("9 mm")))
sketch5.addConstraint(Sketcher.Constraint("DistanceX", -1, 1, 5, 2, Q("33 mm")))
sketch5.addConstraint(Sketcher.Constraint("DistanceX", -1, 1, 14, 2, Q("48 mm")))
sketch5.addConstraint(Sketcher.Constraint("DistanceX", -1, 1, 19, 2, Q("63 mm")))
sketch5.addConstraint(Sketcher.Constraint("DistanceX", -1, 1, 26, 2, Q("78 mm")))
sketch5.addConstraint(Sketcher.Constraint("DistanceX", -1, 1, 2, 2, Q("18.5 mm")))
sketch5.addConstraint(Sketcher.Constraint("DistanceX", 1, 1, 1, 2, Q("0.49969 mm")))
sketch5.addConstraint(Sketcher.Constraint("DistanceY", 15, 1, 15, 2, Q("0.001147 mm")))
sketch5.setExpression("Constraints[74]", "Params.sketch5_radius")
sketch5.setExpression("Constraints[75]", "Params.sketch5_length")
sketch5.setExpression("Constraints[76]", "Params.sketch5_length2")
pocket3 = body.newObject("PartDesign::Pocket", "Pocket002")
pocket3.Profile = sketch5
pocket3.setExpression("Length", "Params.pocket3_length")

doc.recompute()
